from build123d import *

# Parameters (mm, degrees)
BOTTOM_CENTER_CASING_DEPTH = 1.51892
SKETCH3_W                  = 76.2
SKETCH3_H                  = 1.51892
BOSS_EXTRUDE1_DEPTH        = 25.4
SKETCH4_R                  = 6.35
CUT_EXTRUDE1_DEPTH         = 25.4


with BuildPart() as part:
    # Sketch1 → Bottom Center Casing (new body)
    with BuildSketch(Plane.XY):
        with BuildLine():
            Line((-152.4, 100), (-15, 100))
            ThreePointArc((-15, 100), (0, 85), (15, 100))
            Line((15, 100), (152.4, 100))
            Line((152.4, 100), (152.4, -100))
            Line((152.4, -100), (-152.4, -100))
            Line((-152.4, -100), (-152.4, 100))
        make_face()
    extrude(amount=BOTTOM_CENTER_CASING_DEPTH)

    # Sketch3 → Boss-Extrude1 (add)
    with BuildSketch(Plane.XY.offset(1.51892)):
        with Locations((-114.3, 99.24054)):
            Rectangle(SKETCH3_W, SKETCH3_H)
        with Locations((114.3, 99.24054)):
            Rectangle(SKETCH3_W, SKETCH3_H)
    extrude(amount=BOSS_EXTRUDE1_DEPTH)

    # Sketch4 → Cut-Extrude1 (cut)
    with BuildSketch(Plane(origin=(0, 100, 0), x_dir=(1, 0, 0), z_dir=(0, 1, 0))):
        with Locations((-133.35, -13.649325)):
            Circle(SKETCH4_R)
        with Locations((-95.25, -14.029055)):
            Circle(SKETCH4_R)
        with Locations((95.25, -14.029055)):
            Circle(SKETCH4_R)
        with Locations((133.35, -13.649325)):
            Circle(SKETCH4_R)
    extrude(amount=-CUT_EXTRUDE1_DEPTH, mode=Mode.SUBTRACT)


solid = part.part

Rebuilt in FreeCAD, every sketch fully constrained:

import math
import FreeCAD as App
import Part
import Sketcher
from FreeCAD import Vector
Q = App.Units.Quantity

doc = App.newDocument("Part")
params = doc.addObject("Spreadsheet::Sheet", "Params")
for row, (alias, value) in enumerate([
    ("sketch1_width", "12 in"),
    ("pad1_length", "0.0598 in"),
    ("sketch2_width", "3 in"),
    ("pad2_length", "1 in"),
    ("sketch3_diameter", "0.5 in"),
    ("pocket1_length", "1 in"),
], start=1):
    params.set(f"A{row}", alias)
    params.set(f"B{row}", "=" + value)
    params.setAlias(f"B{row}", alias)

body = doc.addObject("PartDesign::Body", "Body")

# Sketch on XY plane
sketch1 = doc.addObject("Sketcher::SketchObject", "Sketch")
body.addObject(sketch1)
sketch1.AttachmentSupport = (doc.XY_Plane, [""])
sketch1.MapMode = "FlatFace"
sketch1.addGeometry([
    Part.LineSegment(Vector(-15, 100, 0), Vector(-152, 100, 0)),  # 0
    Part.LineSegment(Vector(-152, 100, 0), Vector(-152, -100, 0)),  # 1
    Part.LineSegment(Vector(-152, -100, 0), Vector(152, -100, 0)),  # 2
    Part.LineSegment(Vector(152, -100, 0), Vector(152, 100, 0)),  # 3
    Part.LineSegment(Vector(152, 100, 0), Vector(15, 100, 0)),  # 4
    Part.ArcOfCircle(Part.Circle(Vector(0, 100, 0), Vector(0, 0, 1), 15), math.radians(180), math.radians(360)),  # 5
], False)
sketch1.addConstraint([
    Sketcher.Constraint("Coincident", 0, 2, 1, 1),
    Sketcher.Constraint("Coincident", 1, 2, 2, 1),
    Sketcher.Constraint("Coincident", 2, 2, 3, 1),
    Sketcher.Constraint("Coincident", 3, 2, 4, 1),
    Sketcher.Constraint("Coincident", 4, 2, 5, 2),
    Sketcher.Constraint("Coincident", 5, 1, 0, 1),
    Sketcher.Constraint("Horizontal", 0),
    Sketcher.Constraint("Vertical", 1),
    Sketcher.Constraint("Horizontal", 2),
    Sketcher.Constraint("Vertical", 3),
    Sketcher.Constraint("Horizontal", 4),
    Sketcher.Constraint("Symmetric", 0, 2, 2, 2, -1, 1),
    Sketcher.Constraint("Symmetric", 4, 2, 5, 1, -2),
    Sketcher.Constraint("Horizontal", 5, 3, 0, 2),
    Sketcher.Constraint("DistanceX", 2, 1, 2, 2, Q("12 in")),
    Sketcher.Constraint("Radius", 5, Q("15 mm")),
    Sketcher.Constraint("DistanceY", 1, 2, 1, 1, Q("200 mm")),
])
sketch1.setExpression("Constraints[14]", "Params.sketch1_width")
pad1 = doc.addObject("PartDesign::Pad", "Pad")
body.addObject(pad1)
pad1.Profile = sketch1
pad1.setExpression("Length", "Params.pad1_length")

# Sketch on XY plane
sketch2 = doc.addObject("Sketcher::SketchObject", "Sketch001")
body.addObject(sketch2)
sketch2.AttachmentSupport = (doc.XY_Plane, [""])
sketch2.MapMode = "FlatFace"
sketch2.AttachmentOffset = App.Placement(Vector(0, 0, 0.0598 * 25.4), App.Rotation())
sketch2.addGeometry([
    Part.LineSegment(Vector(-152.4, 100, 0), Vector(-152.4, 98.5, 0)),  # 0
    Part.LineSegment(Vector(-152.4, 98.5, 0), Vector(-76.2, 98.5, 0)),  # 1
    Part.LineSegment(Vector(-76.2, 98.5, 0), Vector(-76.2, 100, 0)),  # 2
    Part.LineSegment(Vector(-76.2, 100, 0), Vector(-152.4, 100, 0)),  # 3
    Part.LineSegment(Vector(76.2, 100, 0), Vector(76.2, 98.5, 0)),  # 4
    Part.LineSegment(Vector(76.2, 98.5, 0), Vector(152.4, 98.5, 0)),  # 5
    Part.LineSegment(Vector(152.4, 98.5, 0), Vector(152.4, 100, 0)),  # 6
    Part.LineSegment(Vector(152.4, 100, 0), Vector(76.2, 100, 0)),  # 7
], False)
sketch2.addConstraint([
    Sketcher.Constraint("Coincident", 0, 2, 1, 1),
    Sketcher.Constraint("Coincident", 1, 2, 2, 1),
    Sketcher.Constraint("Coincident", 2, 2, 3, 1),
    Sketcher.Constraint("Coincident", 3, 2, 0, 1),
    Sketcher.Constraint("Coincident", 4, 2, 5, 1),
    Sketcher.Constraint("Coincident", 5, 2, 6, 1),
    Sketcher.Constraint("Coincident", 6, 2, 7, 1),
    Sketcher.Constraint("Coincident", 7, 2, 4, 1),
    Sketcher.Constraint("Vertical", 0),
    Sketcher.Constraint("Horizontal", 1),
    Sketcher.Constraint("Vertical", 2),
    Sketcher.Constraint("Horizontal", 3),
    Sketcher.Constraint("Vertical", 4),
    Sketcher.Constraint("Horizontal", 5),
    Sketcher.Constraint("Vertical", 6),
    Sketcher.Constraint("Horizontal", 7),
    Sketcher.Constraint("Symmetric", 1, 2, 4, 2, -2),
    Sketcher.Constraint("Symmetric", 3, 2, 6, 2, -2),
    Sketcher.Constraint("DistanceX", 1, 1, 1, 2, Q("3 in")),
    Sketcher.Constraint("DistanceX", 0, 2, -1, 1, Q("6 in")),
    Sketcher.Constraint("DistanceY", 0, 2, 0, 1, Q("0.0598 in")),
    Sketcher.Constraint("DistanceY", -1, 1, 2, 2, Q("100 mm")),
])
sketch2.setExpression("Constraints[18]", "Params.sketch2_width")
pad2 = doc.addObject("PartDesign::Pad", "Pad001")
body.addObject(pad2)
pad2.Profile = sketch2
pad2.setExpression("Length", "Params.pad2_length")

# Sketch on XZ plane
sketch3 = doc.addObject("Sketcher::SketchObject", "Sketch002")
body.addObject(sketch3)
sketch3.AttachmentSupport = (doc.XZ_Plane, [""])
sketch3.MapMode = "FlatFace"
sketch3.AttachmentOffset = App.Placement(Vector(0, 0, -100), App.Rotation())
sketch3.addGeometry([
    Part.Circle(Vector(-133, 14, 0), Vector(0, 0, 1), 6),
    Part.Circle(Vector(-95, 14, 0), Vector(0, 0, 1), 6),
    Part.Circle(Vector(95, 14, 0), Vector(0, 0, 1), 6),
    Part.Circle(Vector(133, 14, 0), Vector(0, 0, 1), 6),
], False)
sketch3.addConstraint([
    Sketcher.Constraint("Equal", 0, 1),
    Sketcher.Constraint("Equal", 1, 2),
    Sketcher.Constraint("Equal", 2, 3),
    Sketcher.Constraint("Symmetric", 1, 3, 2, 3, -2),
    Sketcher.Constraint("Symmetric", 0, 3, 3, 3, -2),
    Sketcher.Constraint("Diameter", 0, Q("0.5 in")),
    Sketcher.Constraint("DistanceX", 0, 3, 2, 3, Q("9 in")),
    Sketcher.Constraint("DistanceX", 0, 3, 1, 3, Q("1.5 in")),
    Sketcher.Constraint("DistanceY", 0, 3, 1, 3, Q("0.37973 mm")),
    Sketcher.Constraint("DistanceY", -1, 1, 0, 3, Q("13.649325 mm")),
])
sketch3.setExpression("Constraints[5]", "Params.sketch3_diameter")
pocket1 = doc.addObject("PartDesign::Pocket", "Pocket")
body.addObject(pocket1)
pocket1.Profile = sketch3
pocket1.setExpression("Length", "Params.pocket1_length")
pocket1.Reversed = True

doc.recompute()
